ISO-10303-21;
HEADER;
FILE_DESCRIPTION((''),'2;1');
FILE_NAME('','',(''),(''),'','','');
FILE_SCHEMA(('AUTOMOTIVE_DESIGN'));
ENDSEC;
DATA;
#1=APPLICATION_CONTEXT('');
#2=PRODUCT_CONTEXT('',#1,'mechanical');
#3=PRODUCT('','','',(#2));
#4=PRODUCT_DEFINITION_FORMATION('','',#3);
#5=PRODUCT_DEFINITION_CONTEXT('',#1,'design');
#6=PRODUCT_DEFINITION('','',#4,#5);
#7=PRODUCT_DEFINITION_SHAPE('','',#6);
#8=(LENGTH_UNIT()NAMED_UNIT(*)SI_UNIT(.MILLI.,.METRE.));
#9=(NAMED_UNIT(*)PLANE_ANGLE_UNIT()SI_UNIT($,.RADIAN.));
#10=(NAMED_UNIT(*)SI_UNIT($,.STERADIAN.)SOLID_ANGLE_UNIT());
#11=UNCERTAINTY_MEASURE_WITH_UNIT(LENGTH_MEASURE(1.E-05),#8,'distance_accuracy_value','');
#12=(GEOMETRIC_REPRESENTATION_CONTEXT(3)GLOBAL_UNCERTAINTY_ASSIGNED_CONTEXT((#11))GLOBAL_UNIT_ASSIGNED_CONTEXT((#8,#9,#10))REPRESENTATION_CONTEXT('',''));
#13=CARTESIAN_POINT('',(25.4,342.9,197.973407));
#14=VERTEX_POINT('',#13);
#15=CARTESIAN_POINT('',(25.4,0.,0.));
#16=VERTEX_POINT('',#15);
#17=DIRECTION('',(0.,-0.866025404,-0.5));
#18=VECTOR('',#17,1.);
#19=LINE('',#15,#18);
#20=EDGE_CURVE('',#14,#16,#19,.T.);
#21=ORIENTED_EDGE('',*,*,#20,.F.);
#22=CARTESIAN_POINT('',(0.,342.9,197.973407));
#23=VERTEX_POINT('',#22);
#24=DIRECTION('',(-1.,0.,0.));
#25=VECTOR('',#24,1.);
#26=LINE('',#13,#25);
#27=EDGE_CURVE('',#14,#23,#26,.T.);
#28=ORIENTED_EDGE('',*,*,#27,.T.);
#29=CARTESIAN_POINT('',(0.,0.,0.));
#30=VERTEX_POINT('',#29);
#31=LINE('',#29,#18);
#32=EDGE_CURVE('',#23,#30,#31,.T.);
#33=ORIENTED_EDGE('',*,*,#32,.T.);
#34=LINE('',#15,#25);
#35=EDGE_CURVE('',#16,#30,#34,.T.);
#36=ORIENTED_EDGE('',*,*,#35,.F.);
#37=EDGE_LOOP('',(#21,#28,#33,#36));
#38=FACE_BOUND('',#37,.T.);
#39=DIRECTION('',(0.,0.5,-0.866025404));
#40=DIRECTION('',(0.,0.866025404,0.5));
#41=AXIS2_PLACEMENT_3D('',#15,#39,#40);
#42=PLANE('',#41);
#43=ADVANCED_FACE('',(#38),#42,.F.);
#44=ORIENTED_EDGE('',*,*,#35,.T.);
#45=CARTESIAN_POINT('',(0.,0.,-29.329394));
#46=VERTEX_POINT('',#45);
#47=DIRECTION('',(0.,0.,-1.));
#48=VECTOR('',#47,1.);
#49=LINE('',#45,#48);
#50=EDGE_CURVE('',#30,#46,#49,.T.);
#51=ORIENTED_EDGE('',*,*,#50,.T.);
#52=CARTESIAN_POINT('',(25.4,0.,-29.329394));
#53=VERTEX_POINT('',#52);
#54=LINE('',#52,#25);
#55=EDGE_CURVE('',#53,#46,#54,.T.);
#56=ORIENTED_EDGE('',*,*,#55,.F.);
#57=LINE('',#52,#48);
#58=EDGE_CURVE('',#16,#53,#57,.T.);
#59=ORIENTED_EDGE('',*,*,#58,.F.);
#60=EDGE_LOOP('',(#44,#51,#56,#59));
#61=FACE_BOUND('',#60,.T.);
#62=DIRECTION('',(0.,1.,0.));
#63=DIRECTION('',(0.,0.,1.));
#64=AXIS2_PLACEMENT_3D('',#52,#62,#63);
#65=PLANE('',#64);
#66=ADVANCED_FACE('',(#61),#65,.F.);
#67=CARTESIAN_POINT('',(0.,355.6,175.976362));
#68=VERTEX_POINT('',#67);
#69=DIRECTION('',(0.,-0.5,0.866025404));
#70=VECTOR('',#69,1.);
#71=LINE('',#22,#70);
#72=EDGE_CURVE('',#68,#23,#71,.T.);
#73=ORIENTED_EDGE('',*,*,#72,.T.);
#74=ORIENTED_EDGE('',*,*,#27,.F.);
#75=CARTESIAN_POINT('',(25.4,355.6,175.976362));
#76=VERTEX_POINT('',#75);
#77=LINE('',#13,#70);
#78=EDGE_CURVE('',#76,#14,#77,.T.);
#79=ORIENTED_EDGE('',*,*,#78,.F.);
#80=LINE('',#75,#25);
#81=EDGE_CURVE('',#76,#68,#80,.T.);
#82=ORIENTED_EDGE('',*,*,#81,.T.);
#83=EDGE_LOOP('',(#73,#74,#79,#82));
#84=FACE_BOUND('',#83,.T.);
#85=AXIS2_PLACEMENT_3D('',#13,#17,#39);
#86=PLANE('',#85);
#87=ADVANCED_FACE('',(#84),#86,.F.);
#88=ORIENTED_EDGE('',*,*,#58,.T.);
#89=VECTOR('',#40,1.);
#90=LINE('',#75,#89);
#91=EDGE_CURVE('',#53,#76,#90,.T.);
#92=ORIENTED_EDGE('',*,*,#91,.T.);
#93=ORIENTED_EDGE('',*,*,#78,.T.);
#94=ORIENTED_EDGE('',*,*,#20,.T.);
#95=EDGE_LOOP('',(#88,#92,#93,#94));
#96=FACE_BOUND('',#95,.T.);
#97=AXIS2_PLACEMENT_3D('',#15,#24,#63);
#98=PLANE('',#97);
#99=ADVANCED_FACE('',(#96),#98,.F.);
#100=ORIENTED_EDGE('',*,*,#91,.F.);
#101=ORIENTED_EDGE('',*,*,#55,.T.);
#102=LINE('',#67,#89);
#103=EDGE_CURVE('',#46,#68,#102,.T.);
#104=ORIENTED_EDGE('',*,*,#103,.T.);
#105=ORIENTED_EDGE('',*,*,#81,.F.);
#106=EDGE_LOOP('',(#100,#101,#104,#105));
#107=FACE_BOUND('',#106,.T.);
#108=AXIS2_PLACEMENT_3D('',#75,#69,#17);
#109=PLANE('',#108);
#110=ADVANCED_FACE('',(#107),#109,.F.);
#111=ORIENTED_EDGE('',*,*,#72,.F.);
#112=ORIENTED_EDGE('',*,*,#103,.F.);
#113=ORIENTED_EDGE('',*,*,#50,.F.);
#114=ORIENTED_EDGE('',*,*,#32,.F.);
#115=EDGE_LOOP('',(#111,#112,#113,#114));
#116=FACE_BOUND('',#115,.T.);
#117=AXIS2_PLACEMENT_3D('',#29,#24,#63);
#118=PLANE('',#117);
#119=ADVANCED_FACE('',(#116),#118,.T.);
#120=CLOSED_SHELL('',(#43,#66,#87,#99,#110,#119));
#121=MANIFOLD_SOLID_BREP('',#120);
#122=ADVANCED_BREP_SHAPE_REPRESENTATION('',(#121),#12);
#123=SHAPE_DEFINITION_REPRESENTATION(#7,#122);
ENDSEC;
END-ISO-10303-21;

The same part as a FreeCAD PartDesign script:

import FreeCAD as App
import Part
import Sketcher

V = App.Vector
Q = App.Units.Quantity


def add_polygon(sketch, points):
    """Adds a closed chain of lines whose ends are joined by coincident constraints."""
    first, n = sketch.GeometryCount, len(points)
    for a, b in zip(points, points[1:] + points[:1]):
        sketch.addGeometry(Part.LineSegment(App.Vector(*a, 0), App.Vector(*b, 0)), False)
    for i in range(n):
        sketch.addConstraint(Sketcher.Constraint("Coincident", first + i, 2, first + (i + 1) % n, 1))

doc = App.newDocument("Part")
params = doc.addObject("Spreadsheet::Sheet", "Params")
for row, (alias, value) in enumerate([
    ("sketch1_length", "1 in"),
    ("pad1_length", "1 in"),
], start=1):
    params.set(f"A{row}", alias)
    params.set(f"B{row}", "=" + value)
    params.setAlias(f"B{row}", alias)

body = doc.addObject("PartDesign::Body", "Body")

# Sketch on YZ plane
sketch1 = body.newObject("Sketcher::SketchObject", "Sketch")
sketch1.AttachmentSupport = (doc.getObject("YZ_Plane"), [""])
sketch1.MapMode = "FlatFace"
add_polygon(sketch1, [(343, 198), (0, 0), (0, -29), (356, 176)])  # lines 0-3
sketch1.addConstraint([
    Sketcher.Constraint("Vertical", 1),
    Sketcher.Constraint("Coincident", 0, 2, -1, 1),
    Sketcher.Constraint("Parallel", 0, 2),
    Sketcher.Constraint("Perpendicular", 2, 3),
    Sketcher.Constraint("Distance", 3, Q("1 in")),
    Sketcher.Constraint("DistanceX", -1, 1, 2, 2, Q("14 in")),
    Sketcher.Constraint("Angle", 0, Q("-150 deg")),
])
sketch1.setExpression("Constraints[8]", "Params.sketch1_length")
pad1 = body.newObject("PartDesign::Pad", "Pad")
pad1.Profile = sketch1
pad1.setExpression("Length", "Params.pad1_length")

doc.recompute()
